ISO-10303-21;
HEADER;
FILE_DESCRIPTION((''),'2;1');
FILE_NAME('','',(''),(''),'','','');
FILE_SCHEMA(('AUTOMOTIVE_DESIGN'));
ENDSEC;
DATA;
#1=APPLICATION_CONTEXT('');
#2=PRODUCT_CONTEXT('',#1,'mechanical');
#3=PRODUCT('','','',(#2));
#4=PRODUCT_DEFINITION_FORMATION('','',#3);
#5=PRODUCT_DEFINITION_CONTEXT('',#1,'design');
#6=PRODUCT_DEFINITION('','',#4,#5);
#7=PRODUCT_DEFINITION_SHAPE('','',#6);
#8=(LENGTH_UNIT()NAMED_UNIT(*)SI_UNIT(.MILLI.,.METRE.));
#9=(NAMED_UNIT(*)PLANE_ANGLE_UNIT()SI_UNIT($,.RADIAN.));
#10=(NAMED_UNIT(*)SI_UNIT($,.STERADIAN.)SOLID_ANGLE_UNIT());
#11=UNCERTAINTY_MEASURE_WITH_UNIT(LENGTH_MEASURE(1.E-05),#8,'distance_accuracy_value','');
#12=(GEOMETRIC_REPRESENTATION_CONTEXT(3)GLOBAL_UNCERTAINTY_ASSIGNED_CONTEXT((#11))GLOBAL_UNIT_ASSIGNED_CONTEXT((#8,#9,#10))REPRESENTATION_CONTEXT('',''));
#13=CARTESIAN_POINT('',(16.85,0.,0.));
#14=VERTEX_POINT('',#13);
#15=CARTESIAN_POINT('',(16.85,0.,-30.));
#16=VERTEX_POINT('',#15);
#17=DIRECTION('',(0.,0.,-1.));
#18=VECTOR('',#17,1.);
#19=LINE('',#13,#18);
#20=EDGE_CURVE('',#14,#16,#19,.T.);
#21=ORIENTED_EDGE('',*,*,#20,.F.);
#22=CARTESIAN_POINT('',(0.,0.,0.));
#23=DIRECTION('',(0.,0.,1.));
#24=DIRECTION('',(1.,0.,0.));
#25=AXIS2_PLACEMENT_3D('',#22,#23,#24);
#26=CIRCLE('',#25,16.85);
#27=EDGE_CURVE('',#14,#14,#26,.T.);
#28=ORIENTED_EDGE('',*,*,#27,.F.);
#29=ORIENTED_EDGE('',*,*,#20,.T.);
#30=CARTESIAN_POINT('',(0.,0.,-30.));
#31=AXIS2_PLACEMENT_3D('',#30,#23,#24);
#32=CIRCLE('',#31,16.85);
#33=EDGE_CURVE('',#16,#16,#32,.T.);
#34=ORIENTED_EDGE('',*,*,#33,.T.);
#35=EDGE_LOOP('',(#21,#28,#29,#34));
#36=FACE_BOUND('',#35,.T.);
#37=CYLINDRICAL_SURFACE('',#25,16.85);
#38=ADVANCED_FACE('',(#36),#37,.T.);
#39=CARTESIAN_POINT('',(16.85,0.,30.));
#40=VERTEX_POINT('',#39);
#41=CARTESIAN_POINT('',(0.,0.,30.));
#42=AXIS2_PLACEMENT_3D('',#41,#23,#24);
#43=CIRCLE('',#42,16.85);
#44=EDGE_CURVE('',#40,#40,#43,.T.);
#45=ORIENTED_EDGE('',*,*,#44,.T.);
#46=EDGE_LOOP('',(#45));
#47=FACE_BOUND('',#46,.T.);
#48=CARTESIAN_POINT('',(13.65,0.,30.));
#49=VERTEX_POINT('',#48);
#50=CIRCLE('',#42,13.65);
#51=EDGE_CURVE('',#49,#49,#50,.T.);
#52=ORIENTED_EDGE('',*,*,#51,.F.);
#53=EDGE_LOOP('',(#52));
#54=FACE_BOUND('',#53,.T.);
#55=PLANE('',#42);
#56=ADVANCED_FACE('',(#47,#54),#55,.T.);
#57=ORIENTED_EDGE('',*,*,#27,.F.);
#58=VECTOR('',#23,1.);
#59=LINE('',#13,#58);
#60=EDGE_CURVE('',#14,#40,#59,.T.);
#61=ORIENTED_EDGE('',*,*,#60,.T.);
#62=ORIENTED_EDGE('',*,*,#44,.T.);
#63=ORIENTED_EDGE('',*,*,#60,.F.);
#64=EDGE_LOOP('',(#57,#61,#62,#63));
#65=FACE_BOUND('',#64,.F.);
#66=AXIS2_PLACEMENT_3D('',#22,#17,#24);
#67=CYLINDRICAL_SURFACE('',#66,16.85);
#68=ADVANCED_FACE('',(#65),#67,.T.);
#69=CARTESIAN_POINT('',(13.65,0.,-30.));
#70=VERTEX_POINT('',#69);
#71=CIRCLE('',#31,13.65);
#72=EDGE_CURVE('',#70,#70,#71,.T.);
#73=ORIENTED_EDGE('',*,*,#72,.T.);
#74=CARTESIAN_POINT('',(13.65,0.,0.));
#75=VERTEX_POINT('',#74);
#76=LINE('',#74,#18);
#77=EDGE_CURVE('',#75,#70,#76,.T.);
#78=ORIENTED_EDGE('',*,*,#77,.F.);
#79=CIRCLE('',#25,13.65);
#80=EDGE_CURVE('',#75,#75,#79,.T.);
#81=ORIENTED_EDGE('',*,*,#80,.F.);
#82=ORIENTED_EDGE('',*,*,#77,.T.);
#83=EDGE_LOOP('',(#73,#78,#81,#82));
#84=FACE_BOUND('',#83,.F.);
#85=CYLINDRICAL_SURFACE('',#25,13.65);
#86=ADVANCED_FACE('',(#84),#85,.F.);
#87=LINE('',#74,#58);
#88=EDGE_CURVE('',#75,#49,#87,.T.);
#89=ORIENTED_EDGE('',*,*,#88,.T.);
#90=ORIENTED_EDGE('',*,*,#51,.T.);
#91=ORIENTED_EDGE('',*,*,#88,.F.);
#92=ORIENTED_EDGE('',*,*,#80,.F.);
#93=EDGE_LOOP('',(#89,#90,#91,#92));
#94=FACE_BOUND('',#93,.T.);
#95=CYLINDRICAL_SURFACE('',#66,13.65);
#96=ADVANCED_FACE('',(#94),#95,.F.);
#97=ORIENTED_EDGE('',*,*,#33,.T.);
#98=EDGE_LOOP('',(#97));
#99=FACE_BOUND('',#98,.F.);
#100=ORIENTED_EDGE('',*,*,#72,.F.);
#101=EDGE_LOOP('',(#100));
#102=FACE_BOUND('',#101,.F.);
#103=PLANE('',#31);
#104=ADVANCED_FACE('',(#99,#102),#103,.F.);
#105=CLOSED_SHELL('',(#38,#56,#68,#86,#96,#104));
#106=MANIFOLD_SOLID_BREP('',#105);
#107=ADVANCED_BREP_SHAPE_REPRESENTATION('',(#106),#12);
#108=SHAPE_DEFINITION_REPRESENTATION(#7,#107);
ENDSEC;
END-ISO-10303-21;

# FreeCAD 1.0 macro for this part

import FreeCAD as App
import Part
import Sketcher
Q = App.Units.Quantity

doc = App.newDocument("Part")
body = doc.addObject("PartDesign::Body", "Body")

# Sketch on XY plane
sketch1 = body.newObject("Sketcher::SketchObject", "Sketch")
sketch1.AttachmentSupport = (doc.getObject("XY_Plane"), [""])
sketch1.MapMode = "FlatFace"
sketch1.addGeometry([
    Part.Circle(App.Vector(0, 0, 0), App.Vector(0, 0, 1), 17),
    Part.Circle(App.Vector(0, 0, 0), App.Vector(0, 0, 1), 14),
], False)
sketch1.addConstraint([
    Sketcher.Constraint("Coincident", 0, 3, -1, 1),
    Sketcher.Constraint("Coincident", 1, 3, -1, 1),
    Sketcher.Constraint("Diameter", 0, Q("33.7 mm")),
    Sketcher.Constraint("Diameter", 1, Q("27.3 mm")),
])
pad1 = body.newObject("PartDesign::Pad", "Pad")
pad1.Profile = sketch1
pad1.Length = 60
pad1.Midplane = True

doc.recompute()
